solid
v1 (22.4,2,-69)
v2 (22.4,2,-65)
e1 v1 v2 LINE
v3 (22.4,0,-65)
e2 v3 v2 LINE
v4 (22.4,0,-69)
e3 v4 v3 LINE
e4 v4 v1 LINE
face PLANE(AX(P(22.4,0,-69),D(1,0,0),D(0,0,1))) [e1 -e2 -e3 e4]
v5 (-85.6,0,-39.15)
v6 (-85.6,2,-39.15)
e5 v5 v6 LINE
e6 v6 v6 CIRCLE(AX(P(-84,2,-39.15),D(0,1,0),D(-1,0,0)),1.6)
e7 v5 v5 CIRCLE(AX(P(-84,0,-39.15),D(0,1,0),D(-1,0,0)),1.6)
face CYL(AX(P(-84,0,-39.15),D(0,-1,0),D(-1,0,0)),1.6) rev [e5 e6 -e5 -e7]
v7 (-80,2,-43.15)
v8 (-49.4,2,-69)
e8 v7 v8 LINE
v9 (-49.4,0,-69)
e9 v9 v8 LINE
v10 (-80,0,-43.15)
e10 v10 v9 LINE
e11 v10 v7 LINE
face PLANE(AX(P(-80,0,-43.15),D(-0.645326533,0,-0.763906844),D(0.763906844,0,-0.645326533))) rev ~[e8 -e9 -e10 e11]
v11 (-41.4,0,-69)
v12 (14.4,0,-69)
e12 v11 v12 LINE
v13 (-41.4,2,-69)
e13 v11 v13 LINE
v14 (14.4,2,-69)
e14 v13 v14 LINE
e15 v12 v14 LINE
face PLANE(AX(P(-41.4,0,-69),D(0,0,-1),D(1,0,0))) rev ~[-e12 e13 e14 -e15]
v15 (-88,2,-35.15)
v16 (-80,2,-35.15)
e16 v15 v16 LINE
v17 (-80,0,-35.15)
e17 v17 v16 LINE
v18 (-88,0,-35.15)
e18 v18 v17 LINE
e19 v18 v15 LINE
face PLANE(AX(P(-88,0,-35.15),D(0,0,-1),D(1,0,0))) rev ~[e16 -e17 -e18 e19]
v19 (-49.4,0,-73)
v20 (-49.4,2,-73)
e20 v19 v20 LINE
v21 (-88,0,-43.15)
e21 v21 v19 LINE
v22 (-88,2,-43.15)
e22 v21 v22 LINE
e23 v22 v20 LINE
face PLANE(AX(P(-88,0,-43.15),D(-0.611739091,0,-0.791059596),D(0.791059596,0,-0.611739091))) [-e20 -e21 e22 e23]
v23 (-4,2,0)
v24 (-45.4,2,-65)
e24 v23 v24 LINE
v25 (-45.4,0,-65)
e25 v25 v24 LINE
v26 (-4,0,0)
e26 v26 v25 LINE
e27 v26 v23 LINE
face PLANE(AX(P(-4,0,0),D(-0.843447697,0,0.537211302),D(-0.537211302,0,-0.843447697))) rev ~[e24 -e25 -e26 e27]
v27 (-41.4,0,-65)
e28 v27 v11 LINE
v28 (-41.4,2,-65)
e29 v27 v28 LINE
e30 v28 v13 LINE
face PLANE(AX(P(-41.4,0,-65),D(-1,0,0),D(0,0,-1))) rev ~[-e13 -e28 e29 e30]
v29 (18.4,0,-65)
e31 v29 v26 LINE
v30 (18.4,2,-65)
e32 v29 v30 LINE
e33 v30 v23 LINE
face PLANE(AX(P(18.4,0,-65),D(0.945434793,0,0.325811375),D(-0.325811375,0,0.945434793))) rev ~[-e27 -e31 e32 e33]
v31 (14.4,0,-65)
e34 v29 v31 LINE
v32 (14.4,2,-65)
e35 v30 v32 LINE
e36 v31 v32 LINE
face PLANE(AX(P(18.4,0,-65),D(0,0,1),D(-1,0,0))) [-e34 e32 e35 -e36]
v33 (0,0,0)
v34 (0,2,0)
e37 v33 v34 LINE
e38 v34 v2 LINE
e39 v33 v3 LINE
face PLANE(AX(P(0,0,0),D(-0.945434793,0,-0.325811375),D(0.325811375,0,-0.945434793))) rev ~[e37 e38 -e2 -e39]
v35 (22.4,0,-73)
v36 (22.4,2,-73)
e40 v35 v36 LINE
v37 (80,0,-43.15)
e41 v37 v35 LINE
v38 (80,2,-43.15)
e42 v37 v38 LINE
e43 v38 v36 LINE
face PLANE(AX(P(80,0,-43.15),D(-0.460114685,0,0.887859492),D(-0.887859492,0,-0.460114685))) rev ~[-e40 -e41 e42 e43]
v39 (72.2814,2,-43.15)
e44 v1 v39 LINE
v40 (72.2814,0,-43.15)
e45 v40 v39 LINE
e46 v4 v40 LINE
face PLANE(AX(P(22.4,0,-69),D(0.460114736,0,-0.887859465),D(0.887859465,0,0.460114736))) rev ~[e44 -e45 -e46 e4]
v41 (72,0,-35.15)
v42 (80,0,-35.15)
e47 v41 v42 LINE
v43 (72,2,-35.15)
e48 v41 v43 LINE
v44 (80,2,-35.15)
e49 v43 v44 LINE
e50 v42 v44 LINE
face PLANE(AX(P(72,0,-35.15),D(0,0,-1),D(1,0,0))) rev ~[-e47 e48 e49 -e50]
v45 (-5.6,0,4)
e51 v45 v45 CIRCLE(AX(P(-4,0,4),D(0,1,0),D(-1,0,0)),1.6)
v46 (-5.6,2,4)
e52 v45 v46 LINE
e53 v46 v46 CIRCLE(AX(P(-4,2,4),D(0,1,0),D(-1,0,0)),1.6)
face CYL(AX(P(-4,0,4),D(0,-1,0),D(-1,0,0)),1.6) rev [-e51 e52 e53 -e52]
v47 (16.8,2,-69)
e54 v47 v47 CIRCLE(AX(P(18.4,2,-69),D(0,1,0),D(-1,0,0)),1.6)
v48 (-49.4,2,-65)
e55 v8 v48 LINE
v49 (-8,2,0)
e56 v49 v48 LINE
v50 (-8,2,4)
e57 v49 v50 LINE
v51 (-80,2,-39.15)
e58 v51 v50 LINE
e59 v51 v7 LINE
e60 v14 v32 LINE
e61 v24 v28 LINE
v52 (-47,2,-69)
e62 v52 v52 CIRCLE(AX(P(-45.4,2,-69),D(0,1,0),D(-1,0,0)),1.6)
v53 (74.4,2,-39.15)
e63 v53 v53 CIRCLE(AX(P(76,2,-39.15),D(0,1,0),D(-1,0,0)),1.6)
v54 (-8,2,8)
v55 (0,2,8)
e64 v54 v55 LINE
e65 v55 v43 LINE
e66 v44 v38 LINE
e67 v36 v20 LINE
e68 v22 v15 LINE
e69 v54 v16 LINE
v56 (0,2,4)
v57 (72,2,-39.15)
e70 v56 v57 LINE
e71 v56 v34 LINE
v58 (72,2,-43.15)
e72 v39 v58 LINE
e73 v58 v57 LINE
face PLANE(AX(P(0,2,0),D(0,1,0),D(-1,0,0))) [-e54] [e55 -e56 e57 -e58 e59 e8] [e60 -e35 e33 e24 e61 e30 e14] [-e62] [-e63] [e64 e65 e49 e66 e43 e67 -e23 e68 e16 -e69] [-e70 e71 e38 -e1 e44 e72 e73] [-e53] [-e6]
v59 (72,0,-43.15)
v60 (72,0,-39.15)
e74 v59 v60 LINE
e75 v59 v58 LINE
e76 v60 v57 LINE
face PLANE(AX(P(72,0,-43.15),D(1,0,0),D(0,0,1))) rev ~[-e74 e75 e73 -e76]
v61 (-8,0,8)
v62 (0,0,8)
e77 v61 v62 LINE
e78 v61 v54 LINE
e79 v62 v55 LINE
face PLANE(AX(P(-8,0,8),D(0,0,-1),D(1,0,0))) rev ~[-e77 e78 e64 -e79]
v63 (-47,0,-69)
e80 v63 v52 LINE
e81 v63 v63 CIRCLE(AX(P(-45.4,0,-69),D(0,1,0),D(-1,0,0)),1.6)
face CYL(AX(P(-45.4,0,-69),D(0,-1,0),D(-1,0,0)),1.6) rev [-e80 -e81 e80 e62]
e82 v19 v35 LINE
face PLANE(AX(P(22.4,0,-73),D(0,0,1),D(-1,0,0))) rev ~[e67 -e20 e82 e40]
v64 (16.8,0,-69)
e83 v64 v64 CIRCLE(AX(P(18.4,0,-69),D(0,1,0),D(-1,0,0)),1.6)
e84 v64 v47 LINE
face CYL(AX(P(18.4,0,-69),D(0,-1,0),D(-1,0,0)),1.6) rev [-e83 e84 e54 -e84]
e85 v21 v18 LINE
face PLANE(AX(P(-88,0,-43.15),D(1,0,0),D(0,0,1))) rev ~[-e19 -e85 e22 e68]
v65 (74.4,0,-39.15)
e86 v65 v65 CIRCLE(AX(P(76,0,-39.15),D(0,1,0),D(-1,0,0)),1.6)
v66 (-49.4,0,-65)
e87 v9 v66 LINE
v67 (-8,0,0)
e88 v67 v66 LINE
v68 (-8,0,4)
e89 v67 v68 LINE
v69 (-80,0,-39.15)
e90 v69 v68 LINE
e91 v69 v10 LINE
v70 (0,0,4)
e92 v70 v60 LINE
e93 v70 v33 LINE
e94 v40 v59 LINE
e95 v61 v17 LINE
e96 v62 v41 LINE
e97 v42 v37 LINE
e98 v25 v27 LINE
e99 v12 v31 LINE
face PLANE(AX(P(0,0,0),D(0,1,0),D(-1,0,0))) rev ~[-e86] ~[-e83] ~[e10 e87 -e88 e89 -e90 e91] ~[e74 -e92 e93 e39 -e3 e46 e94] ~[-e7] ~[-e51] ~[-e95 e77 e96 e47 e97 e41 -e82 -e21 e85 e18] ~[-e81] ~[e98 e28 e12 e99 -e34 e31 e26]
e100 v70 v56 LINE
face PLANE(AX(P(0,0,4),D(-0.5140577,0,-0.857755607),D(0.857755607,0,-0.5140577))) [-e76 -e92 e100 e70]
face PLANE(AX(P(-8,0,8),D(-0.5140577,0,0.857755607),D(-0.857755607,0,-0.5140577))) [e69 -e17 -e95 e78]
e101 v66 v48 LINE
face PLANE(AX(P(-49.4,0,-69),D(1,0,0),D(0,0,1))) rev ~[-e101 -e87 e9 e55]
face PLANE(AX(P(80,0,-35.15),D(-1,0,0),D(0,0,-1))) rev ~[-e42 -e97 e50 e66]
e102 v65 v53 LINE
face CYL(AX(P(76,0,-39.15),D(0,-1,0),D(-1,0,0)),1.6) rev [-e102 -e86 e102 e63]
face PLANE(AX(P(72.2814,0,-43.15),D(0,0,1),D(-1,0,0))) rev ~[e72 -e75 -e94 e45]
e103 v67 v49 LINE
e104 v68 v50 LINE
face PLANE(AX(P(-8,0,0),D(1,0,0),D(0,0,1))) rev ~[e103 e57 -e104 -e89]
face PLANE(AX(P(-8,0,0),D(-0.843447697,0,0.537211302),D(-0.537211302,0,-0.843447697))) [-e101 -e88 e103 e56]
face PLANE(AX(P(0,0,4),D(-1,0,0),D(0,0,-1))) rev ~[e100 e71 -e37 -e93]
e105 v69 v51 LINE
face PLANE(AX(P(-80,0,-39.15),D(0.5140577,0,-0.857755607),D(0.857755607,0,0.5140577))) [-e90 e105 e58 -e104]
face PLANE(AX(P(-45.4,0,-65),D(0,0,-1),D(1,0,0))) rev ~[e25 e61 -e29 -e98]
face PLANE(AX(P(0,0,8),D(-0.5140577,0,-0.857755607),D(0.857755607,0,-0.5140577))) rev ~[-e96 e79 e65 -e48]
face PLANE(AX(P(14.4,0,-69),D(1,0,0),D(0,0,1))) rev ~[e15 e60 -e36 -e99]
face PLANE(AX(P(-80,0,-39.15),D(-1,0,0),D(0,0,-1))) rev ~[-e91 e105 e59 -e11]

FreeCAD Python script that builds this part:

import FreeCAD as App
import Part
import Sketcher
from FreeCAD import Vector
Q = App.Units.Quantity

doc = App.newDocument("Part")
body = doc.addObject("PartDesign::Body", "Body")

# Sketch on XZ plane
sketch1 = body.newObject("Sketcher::SketchObject", "Sketch")
sketch1.AttachmentSupport = (doc.getObject("XZ_Plane"), [""])
sketch1.MapMode = "FlatFace"
sketch1.addGeometry(Part.LineSegment(Vector(-8, 8, 0), Vector(0, 8, 0)), False)
sketch1.addGeometry(Part.LineSegment(Vector(0, 8, 0), Vector(72, -35.15, 0)), False)
sketch1.addGeometry(Part.LineSegment(Vector(72, -35.15, 0), Vector(80, -35.15, 0)), False)
sketch1.addGeometry(Part.LineSegment(Vector(80, -35.15, 0), Vector(80, -43.15, 0)), False)
sketch1.addGeometry(Part.LineSegment(Vector(80, -43.15, 0), Vector(22.4, -73, 0)), False)
sketch1.addGeometry(Part.LineSegment(Vector(22.4, -73, 0), Vector(-49.4, -73, 0)), False)
sketch1.addGeometry(Part.LineSegment(Vector(-49.4, -73, 0), Vector(-88, -43.15, 0)), False)
sketch1.addGeometry(Part.LineSegment(Vector(-88, -43.15, 0), Vector(-88, -35.15, 0)), False)
sketch1.addGeometry(Part.LineSegment(Vector(-88, -35.15, 0), Vector(-80, -35.15, 0)), False)
sketch1.addGeometry(Part.LineSegment(Vector(-80, -35.15, 0), Vector(-8, 8, 0)), False)
sketch1.addGeometry(Part.LineSegment(Vector(0, 4, 0), Vector(0, 0, 0)), False)
sketch1.addGeometry(Part.LineSegment(Vector(0, 0, 0), Vector(22.4, -65, 0)), False)
sketch1.addGeometry(Part.LineSegment(Vector(22.4, -65, 0), Vector(22.4, -69, 0)), False)
sketch1.addGeometry(Part.LineSegment(Vector(22.4, -69, 0), Vector(72.28, -43.15, 0)), False)
sketch1.addGeometry(Part.LineSegment(Vector(72.28, -43.15, 0), Vector(72, -43.15, 0)), False)
sketch1.addGeometry(Part.LineSegment(Vector(72, -43.15, 0), Vector(72, -39.15, 0)), False)
sketch1.addGeometry(Part.LineSegment(Vector(72, -39.15, 0), Vector(0, 4, 0)), False)
sketch1.addGeometry(Part.LineSegment(Vector(-8, 0, 0), Vector(-8, 4, 0)), False)
sketch1.addGeometry(Part.LineSegment(Vector(-8, 4, 0), Vector(-80, -39.15, 0)), False)
sketch1.addGeometry(Part.LineSegment(Vector(-80, -39.15, 0), Vector(-80, -43.15, 0)), False)
sketch1.addGeometry(Part.LineSegment(Vector(-80, -43.15, 0), Vector(-49.4, -69, 0)), False)
sketch1.addGeometry(Part.LineSegment(Vector(-49.4, -69, 0), Vector(-49.4, -65, 0)), False)
sketch1.addGeometry(Part.LineSegment(Vector(-49.4, -65, 0), Vector(-8, 0, 0)), False)
sketch1.addGeometry(Part.Circle(Vector(-4, 4, 0), Vector(0, 0, 1), 1.6), False)
sketch1.addGeometry(Part.LineSegment(Vector(-4, 0, 0), Vector(-45.4, -65, 0)), False)
sketch1.addGeometry(Part.LineSegment(Vector(-45.4, -65, 0), Vector(-41.4, -65, 0)), False)
sketch1.addGeometry(Part.LineSegment(Vector(-41.4, -65, 0), Vector(-41.4, -69, 0)), False)
sketch1.addGeometry(Part.LineSegment(Vector(-41.4, -69, 0), Vector(14.4, -69, 0)), False)
sketch1.addGeometry(Part.LineSegment(Vector(14.4, -69, 0), Vector(14.4, -65, 0)), False)
sketch1.addGeometry(Part.LineSegment(Vector(14.4, -65, 0), Vector(18.4, -65, 0)), False)
sketch1.addGeometry(Part.LineSegment(Vector(18.4, -65, 0), Vector(-4, 0, 0)), False)
sketch1.addGeometry(Part.Circle(Vector(-45.4, -69, 0), Vector(0, 0, 1), 1.6), False)
sketch1.addGeometry(Part.Circle(Vector(18.4, -69, 0), Vector(0, 0, 1), 1.6), False)
sketch1.addGeometry(Part.Circle(Vector(76, -39.15, 0), Vector(0, 0, 1), 1.6), False)
sketch1.addGeometry(Part.Circle(Vector(-84, -39.15, 0), Vector(0, 0, 1), 1.6), False)
sketch1.addConstraint(Sketcher.Constraint("Coincident", 0, 2, 1, 1))
sketch1.addConstraint(Sketcher.Constraint("Coincident", 1, 2, 2, 1))
sketch1.addConstraint(Sketcher.Constraint("Coincident", 2, 2, 3, 1))
sketch1.addConstraint(Sketcher.Constraint("Coincident", 3, 2, 4, 1))
sketch1.addConstraint(Sketcher.Constraint("Coincident", 4, 2, 5, 1))
sketch1.addConstraint(Sketcher.Constraint("Coincident", 5, 2, 6, 1))
sketch1.addConstraint(Sketcher.Constraint("Coincident", 6, 2, 7, 1))
sketch1.addConstraint(Sketcher.Constraint("Coincident", 7, 2, 8, 1))
sketch1.addConstraint(Sketcher.Constraint("Coincident", 8, 2, 9, 1))
sketch1.addConstraint(Sketcher.Constraint("Coincident", 9, 2, 0, 1))
sketch1.addConstraint(Sketcher.Constraint("Coincident", 10, 2, 11, 1))
sketch1.addConstraint(Sketcher.Constraint("Coincident", 11, 2, 12, 1))
sketch1.addConstraint(Sketcher.Constraint("Coincident", 12, 2, 13, 1))
sketch1.addConstraint(Sketcher.Constraint("Coincident", 13, 2, 14, 1))
sketch1.addConstraint(Sketcher.Constraint("Coincident", 14, 2, 15, 1))
sketch1.addConstraint(Sketcher.Constraint("Coincident", 15, 2, 16, 1))
sketch1.addConstraint(Sketcher.Constraint("Coincident", 16, 2, 10, 1))
sketch1.addConstraint(Sketcher.Constraint("Coincident", 17, 2, 18, 1))
sketch1.addConstraint(Sketcher.Constraint("Coincident", 18, 2, 19, 1))
sketch1.addConstraint(Sketcher.Constraint("Coincident", 19, 2, 20, 1))
sketch1.addConstraint(Sketcher.Constraint("Coincident", 20, 2, 21, 1))
sketch1.addConstraint(Sketcher.Constraint("Coincident", 21, 2, 22, 1))
sketch1.addConstraint(Sketcher.Constraint("Coincident", 22, 2, 17, 1))
sketch1.addConstraint(Sketcher.Constraint("Coincident", 24, 2, 25, 1))
sketch1.addConstraint(Sketcher.Constraint("Coincident", 25, 2, 26, 1))
sketch1.addConstraint(Sketcher.Constraint("Coincident", 26, 2, 27, 1))
sketch1.addConstraint(Sketcher.Constraint("Coincident", 27, 2, 28, 1))
sketch1.addConstraint(Sketcher.Constraint("Coincident", 28, 2, 29, 1))
sketch1.addConstraint(Sketcher.Constraint("Coincident", 29, 2, 30, 1))
sketch1.addConstraint(Sketcher.Constraint("Coincident", 30, 2, 24, 1))
sketch1.addConstraint(Sketcher.Constraint("Horizontal", 0))
sketch1.addConstraint(Sketcher.Constraint("Horizontal", 2))
sketch1.addConstraint(Sketcher.Constraint("Vertical", 3))
sketch1.addConstraint(Sketcher.Constraint("Horizontal", 5))
sketch1.addConstraint(Sketcher.Constraint("Vertical", 7))
sketch1.addConstraint(Sketcher.Constraint("Horizontal", 8))
sketch1.addConstraint(Sketcher.Constraint("Vertical", 10))
sketch1.addConstraint(Sketcher.Constraint("Vertical", 12))
sketch1.addConstraint(Sketcher.Constraint("Horizontal", 14))
sketch1.addConstraint(Sketcher.Constraint("Vertical", 15))
sketch1.addConstraint(Sketcher.Constraint("Vertical", 17))
sketch1.addConstraint(Sketcher.Constraint("Vertical", 19))
sketch1.addConstraint(Sketcher.Constraint("Vertical", 21))
sketch1.addConstraint(Sketcher.Constraint("Horizontal", 25))
sketch1.addConstraint(Sketcher.Constraint("Vertical", 26))
sketch1.addConstraint(Sketcher.Constraint("Horizontal", 27))
sketch1.addConstraint(Sketcher.Constraint("Vertical", 28))
sketch1.addConstraint(Sketcher.Constraint("Horizontal", 29))
sketch1.addConstraint(Sketcher.Constraint("Coincident", 10, 2, -1, 1))
sketch1.addConstraint(Sketcher.Constraint("Equal", 23, 31))
sketch1.addConstraint(Sketcher.Constraint("Equal", 31, 32))
sketch1.addConstraint(Sketcher.Constraint("Equal", 32, 33))
sketch1.addConstraint(Sketcher.Constraint("Equal", 33, 34))
sketch1.addConstraint(Sketcher.Constraint("Symmetric", 2, 2, 8, 2, -2))
sketch1.addConstraint(Sketcher.Constraint("Symmetric", 3, 2, 19, 2, -2))
sketch1.addConstraint(Sketcher.Constraint("PointOnObject", 0, 2, -2))
sketch1.addConstraint(Sketcher.Constraint("PointOnObject", 22, 2, -1))
sketch1.addConstraint(Sketcher.Constraint("PointOnObject", 30, 2, -1))
sketch1.addConstraint(Sketcher.Constraint("Parallel", 4, 13))
sketch1.addConstraint(Sketcher.Constraint("Parallel", 1, 16))
sketch1.addConstraint(Sketcher.Constraint("Parallel", 9, 18))
sketch1.addConstraint(Sketcher.Constraint("Parallel", 22, 24))
sketch1.addConstraint(Sketcher.Constraint("Parallel", 11, 30))
sketch1.addConstraint(Sketcher.Constraint("Horizontal", 31, 3, 32, 3))
sketch1.addConstraint(Sketcher.Constraint("Horizontal", 33, 3, 34, 3))
sketch1.addConstraint(Sketcher.Constraint("Horizontal", 3, 2, 6, 2))
sketch1.addConstraint(Sketcher.Constraint("Horizontal", 32, 3, 12, 2))
sketch1.addConstraint(Sketcher.Constraint("Horizontal", 6, 2, 13, 2))
sketch1.addConstraint(Sketcher.Constraint("Horizontal", 34, 3, 15, 2))
sketch1.addConstraint(Sketcher.Constraint("Horizontal", 23, 3, 16, 2))
sketch1.addConstraint(Sketcher.Constraint("Horizontal", 16, 2, 17, 2))
sketch1.addConstraint(Sketcher.Constraint("Horizontal", 15, 2, 18, 2))
sketch1.addConstraint(Sketcher.Constraint("Horizontal", 12, 2, 20, 2))
sketch1.addConstraint(Sketcher.Constraint("Horizontal", 11, 2, 21, 2))
sketch1.addConstraint(Sketcher.Constraint("Horizontal", 21, 2, 24, 2))
sketch1.addConstraint(Sketcher.Constraint("Horizontal", 20, 2, 26, 2))
sketch1.addConstraint(Sketcher.Constraint("Horizontal", 25, 2, 28, 2))
sketch1.addConstraint(Sketcher.Constraint("Vertical", 4, 2, 11, 2))
sketch1.addConstraint(Sketcher.Constraint("Vertical", 1, 2, 14, 2))
sketch1.addConstraint(Sketcher.Constraint("Vertical", 5, 2, 20, 2))
sketch1.addConstraint(Sketcher.Constraint("Vertical", 31, 3, 24, 2))
sketch1.addConstraint(Sketcher.Constraint("Vertical", 32, 3, 29, 2))
sketch1.addConstraint(Sketcher.Constraint("Vertical", 23, 3, 30, 2))
sketch1.addConstraint(Sketcher.Constraint("Equal", 0, 2))
sketch1.addConstraint(Sketcher.Constraint("Equal", 2, 8))
sketch1.addConstraint(Sketcher.Constraint("Equal", 25, 29))
sketch1.addConstraint(Sketcher.Constraint("Equal", 8, 3))
sketch1.addConstraint(Sketcher.Constraint("Equal", 29, 10))
sketch1.addConstraint(Sketcher.Constraint("Equal", 10, 12))
sketch1.addConstraint(Sketcher.Constraint("Equal", 12, 15))
sketch1.addConstraint(Sketcher.Constraint("Diameter", 23, Q("3.2 mm")))
sketch1.addConstraint(Sketcher.Constraint("DistanceX", 0, 1, 0, 2, Q("8 mm")))
sketch1.addConstraint(Sketcher.Constraint("DistanceX", 25, 1, 25, 2, Q("4 mm")))
sketch1.addConstraint(Sketcher.Constraint("DistanceX", 5, 2, 5, 1, Q("71.8 mm")))
sketch1.addConstraint(Sketcher.Constraint("DistanceX", 23, 3, -1, 1, Q("4 mm")))
sketch1.addConstraint(Sketcher.Constraint("DistanceY", 31, 3, -1, 1, Q("69 mm")))
sketch1.addConstraint(Sketcher.Constraint("DistanceX", -1, 1, 33, 3, Q("76 mm")))
sketch1.addConstraint(Sketcher.Constraint("DistanceX", 34, 3, -1, 1, Q("84 mm")))
sketch1.addConstraint(Sketcher.Constraint("DistanceX", -1, 1, 1, 2, Q("72 mm")))
sketch1.addConstraint(Sketcher.Constraint("DistanceY", 4, 2, -1, 1, Q("73 mm")))
sketch1.addConstraint(Sketcher.Constraint("DistanceX", 31, 3, -1, 1, Q("45.4 mm")))
sketch1.addConstraint(Sketcher.Constraint("Angle", 20, Q("-40.1902 deg")))
pad1 = body.newObject("PartDesign::Pad", "Pad")
pad1.Profile = sketch1
pad1.Length = 2
pad1.Reversed = True

doc.recompute()
